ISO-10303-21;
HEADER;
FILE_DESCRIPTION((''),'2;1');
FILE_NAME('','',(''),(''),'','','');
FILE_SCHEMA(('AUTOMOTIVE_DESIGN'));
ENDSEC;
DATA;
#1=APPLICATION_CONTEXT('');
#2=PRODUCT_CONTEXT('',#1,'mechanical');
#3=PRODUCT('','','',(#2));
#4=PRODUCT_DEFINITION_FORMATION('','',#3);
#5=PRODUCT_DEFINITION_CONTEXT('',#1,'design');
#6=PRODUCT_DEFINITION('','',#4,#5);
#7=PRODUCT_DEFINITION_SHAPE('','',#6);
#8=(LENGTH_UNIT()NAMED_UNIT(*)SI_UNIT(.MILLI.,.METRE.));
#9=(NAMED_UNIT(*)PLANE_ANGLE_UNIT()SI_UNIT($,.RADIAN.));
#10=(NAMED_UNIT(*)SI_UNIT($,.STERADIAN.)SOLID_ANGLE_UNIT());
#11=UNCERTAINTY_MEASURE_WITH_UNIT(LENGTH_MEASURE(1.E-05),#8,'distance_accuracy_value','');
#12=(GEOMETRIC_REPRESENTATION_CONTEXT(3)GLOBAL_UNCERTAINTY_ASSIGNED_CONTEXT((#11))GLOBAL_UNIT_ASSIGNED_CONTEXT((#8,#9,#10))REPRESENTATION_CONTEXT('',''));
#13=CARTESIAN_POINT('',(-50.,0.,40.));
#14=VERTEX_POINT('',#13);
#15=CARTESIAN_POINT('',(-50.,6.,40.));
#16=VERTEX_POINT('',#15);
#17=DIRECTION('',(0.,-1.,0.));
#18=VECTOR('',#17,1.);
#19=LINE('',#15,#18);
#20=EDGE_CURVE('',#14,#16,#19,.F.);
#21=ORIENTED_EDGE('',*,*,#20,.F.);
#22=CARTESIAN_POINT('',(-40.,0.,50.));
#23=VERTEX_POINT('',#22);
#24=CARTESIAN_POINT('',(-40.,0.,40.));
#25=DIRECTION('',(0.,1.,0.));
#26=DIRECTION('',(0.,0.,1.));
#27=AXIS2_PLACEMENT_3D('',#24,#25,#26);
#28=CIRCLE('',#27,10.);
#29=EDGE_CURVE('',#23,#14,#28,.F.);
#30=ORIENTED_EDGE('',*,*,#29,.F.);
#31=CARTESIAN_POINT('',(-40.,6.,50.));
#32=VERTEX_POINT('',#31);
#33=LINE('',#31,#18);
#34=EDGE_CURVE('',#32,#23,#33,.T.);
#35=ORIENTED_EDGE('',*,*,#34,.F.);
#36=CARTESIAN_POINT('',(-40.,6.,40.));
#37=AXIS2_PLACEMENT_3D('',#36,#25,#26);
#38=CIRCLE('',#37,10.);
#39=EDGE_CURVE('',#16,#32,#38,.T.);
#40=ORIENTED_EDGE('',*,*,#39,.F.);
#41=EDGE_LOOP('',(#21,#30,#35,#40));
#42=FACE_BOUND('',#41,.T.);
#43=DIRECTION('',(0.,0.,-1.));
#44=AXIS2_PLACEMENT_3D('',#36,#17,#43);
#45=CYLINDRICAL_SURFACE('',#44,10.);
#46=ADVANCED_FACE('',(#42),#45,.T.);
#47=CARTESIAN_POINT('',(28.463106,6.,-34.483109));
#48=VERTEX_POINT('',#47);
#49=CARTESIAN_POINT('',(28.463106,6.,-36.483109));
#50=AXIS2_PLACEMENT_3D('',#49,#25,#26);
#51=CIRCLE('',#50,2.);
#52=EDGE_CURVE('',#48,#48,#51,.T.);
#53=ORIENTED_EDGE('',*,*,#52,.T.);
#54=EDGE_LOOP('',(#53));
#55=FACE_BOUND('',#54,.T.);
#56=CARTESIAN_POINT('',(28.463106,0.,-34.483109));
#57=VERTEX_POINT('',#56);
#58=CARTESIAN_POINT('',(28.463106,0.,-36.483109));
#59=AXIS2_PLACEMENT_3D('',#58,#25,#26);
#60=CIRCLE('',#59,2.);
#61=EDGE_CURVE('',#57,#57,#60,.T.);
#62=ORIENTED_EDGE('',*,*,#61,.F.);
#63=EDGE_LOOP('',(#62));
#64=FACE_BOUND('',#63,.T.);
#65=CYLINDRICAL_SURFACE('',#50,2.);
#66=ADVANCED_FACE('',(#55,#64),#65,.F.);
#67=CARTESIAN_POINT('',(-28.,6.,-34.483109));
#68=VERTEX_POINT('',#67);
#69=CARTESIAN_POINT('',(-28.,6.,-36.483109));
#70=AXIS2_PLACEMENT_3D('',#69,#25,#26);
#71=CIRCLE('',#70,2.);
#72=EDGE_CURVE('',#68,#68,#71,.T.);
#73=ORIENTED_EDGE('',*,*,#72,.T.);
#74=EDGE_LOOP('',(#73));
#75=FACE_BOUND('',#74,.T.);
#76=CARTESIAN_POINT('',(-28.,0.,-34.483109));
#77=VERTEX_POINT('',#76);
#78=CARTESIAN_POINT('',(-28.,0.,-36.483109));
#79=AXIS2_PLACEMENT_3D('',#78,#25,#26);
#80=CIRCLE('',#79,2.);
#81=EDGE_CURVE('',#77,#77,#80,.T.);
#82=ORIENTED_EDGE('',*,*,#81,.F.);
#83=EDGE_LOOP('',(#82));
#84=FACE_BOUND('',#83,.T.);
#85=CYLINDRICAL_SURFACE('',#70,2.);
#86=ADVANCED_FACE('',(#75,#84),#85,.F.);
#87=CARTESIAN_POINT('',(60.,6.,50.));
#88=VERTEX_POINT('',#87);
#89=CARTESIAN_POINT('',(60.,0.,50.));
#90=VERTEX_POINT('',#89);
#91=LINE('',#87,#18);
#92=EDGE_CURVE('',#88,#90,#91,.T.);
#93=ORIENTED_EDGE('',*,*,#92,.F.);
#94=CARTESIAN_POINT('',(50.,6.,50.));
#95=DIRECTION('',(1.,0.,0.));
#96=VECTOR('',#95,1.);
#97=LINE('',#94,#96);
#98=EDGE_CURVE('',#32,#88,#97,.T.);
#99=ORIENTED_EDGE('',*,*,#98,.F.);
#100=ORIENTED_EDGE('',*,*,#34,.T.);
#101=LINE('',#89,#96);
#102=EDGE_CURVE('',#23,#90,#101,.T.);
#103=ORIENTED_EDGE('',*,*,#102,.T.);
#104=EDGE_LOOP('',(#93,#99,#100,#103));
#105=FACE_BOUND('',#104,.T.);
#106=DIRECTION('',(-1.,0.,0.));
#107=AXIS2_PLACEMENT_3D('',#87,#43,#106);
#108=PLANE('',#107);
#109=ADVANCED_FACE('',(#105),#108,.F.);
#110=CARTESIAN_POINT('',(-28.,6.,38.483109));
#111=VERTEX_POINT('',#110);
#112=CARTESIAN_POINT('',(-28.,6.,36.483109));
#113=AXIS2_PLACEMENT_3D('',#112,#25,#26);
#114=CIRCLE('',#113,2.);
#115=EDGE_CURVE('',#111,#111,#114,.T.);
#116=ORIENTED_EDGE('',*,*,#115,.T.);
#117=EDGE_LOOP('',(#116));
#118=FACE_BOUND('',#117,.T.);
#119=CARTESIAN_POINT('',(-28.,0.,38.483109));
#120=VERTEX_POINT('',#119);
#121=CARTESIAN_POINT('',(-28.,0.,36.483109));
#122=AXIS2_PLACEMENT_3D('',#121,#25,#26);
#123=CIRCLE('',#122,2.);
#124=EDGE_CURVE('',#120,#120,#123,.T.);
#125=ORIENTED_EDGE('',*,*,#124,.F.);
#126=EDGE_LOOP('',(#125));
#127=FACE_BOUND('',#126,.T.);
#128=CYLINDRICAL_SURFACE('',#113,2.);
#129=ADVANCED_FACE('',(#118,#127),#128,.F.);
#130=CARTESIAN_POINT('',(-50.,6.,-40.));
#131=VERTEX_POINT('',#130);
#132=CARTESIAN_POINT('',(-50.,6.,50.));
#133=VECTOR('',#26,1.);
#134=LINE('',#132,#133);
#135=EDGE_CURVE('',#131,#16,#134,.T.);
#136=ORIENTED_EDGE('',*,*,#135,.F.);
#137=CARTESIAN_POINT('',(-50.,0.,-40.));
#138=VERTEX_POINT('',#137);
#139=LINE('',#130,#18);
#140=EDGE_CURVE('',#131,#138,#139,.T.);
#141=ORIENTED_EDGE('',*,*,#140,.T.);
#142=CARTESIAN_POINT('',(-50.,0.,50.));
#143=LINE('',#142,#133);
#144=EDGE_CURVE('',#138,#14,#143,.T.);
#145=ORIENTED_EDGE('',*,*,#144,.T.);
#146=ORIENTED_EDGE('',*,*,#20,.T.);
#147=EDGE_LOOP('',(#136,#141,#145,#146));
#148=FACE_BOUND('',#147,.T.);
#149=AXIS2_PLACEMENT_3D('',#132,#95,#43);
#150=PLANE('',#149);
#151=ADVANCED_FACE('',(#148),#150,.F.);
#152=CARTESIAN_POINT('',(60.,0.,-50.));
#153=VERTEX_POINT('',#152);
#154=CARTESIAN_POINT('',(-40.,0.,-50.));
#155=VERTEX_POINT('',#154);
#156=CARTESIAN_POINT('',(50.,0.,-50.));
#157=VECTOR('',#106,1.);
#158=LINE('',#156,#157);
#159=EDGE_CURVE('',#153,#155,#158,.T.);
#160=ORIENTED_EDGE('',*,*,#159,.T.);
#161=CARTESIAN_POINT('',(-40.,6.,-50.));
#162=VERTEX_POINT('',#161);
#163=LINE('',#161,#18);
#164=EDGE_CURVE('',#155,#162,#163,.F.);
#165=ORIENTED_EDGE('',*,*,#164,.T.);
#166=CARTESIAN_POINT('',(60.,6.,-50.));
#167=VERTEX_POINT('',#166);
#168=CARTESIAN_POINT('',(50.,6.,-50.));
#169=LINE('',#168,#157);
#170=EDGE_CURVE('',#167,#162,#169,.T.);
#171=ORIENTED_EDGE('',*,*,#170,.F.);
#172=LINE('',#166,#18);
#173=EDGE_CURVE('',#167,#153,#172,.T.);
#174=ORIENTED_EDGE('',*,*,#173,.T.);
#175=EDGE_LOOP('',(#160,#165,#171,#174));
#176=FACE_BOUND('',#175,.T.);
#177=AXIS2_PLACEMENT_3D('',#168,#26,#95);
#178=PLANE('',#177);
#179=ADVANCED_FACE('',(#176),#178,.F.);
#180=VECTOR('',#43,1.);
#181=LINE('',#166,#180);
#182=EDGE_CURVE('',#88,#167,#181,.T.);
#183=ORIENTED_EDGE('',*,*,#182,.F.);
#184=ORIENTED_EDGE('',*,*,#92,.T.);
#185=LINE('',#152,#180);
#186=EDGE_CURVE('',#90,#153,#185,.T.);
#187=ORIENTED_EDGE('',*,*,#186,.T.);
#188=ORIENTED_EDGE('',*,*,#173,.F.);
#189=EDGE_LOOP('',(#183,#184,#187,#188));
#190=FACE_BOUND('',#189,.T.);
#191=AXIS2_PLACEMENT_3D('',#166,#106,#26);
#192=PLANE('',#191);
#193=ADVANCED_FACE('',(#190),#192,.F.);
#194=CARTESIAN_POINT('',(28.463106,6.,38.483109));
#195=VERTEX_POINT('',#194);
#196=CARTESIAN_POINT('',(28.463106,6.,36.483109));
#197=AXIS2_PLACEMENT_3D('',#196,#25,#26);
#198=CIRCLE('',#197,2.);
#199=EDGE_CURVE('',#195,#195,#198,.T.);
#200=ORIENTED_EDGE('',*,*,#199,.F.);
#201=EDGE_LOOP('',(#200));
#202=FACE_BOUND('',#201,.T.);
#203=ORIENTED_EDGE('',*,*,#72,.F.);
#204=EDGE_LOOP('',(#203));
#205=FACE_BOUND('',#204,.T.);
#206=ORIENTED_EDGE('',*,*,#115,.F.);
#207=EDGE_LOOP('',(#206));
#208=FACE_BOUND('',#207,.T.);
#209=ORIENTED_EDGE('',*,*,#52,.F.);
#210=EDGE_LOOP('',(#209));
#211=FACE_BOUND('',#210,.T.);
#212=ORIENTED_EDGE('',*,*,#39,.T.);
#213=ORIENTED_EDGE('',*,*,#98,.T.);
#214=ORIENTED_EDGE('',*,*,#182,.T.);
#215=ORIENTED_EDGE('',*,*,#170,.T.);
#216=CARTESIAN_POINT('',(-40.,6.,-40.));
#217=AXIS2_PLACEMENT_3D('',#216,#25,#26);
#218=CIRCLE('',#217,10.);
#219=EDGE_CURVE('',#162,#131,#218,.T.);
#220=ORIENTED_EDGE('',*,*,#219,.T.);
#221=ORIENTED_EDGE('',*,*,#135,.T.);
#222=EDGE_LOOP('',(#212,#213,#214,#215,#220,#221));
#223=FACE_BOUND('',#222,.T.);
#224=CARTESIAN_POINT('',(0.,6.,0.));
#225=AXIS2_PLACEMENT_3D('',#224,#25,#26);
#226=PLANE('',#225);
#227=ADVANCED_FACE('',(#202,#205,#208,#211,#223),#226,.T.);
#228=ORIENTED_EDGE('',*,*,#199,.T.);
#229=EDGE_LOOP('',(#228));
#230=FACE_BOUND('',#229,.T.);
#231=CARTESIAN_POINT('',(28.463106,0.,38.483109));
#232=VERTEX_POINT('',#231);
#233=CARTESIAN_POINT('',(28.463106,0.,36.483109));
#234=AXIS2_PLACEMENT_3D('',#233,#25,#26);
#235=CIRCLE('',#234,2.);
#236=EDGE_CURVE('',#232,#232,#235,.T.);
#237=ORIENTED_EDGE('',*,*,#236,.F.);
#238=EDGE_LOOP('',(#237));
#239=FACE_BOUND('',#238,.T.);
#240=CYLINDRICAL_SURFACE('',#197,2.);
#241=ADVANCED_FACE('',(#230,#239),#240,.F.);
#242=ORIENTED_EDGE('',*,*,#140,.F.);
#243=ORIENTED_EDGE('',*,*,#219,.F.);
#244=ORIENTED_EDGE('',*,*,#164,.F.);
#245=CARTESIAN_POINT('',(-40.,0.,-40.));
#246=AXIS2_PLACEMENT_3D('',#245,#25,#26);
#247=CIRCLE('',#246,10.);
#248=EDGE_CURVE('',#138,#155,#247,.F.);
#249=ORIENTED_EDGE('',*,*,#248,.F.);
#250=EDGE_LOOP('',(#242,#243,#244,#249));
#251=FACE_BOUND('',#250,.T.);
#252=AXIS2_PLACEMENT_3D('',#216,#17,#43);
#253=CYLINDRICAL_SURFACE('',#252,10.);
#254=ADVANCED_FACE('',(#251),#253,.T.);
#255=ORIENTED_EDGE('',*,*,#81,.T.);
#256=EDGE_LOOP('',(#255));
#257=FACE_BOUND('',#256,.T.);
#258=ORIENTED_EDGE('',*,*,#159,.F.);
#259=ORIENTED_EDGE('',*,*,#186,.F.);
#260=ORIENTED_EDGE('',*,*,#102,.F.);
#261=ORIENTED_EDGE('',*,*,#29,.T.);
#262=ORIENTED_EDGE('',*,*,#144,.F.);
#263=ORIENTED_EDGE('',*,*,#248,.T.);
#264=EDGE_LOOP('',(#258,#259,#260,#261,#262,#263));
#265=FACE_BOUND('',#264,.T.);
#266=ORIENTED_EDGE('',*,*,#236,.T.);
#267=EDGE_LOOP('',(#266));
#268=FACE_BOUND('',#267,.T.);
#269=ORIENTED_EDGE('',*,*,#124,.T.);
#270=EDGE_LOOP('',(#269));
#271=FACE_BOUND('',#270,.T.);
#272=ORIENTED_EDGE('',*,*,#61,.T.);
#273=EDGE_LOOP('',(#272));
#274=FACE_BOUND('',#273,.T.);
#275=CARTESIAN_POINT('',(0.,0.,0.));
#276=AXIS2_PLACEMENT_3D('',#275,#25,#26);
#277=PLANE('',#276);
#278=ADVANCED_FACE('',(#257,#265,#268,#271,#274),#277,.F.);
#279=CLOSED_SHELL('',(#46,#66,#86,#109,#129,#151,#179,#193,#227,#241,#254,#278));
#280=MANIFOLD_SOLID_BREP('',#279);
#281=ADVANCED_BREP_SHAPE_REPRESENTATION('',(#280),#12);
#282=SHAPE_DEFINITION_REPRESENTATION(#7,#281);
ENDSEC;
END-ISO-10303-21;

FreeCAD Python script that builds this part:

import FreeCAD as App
import Part
import Sketcher

V = App.Vector


def edges_at(feature, points):
    """Names of the edges that pass closest to the given points."""
    edges = feature.Shape.Edges
    near = lambda p: min(range(len(edges)), key=lambda i: edges[i].distToShape(Part.Vertex(*p))[0])
    return sorted({f"Edge{near(p) + 1}" for p in points})

doc = App.newDocument("Part")
body = doc.addObject("PartDesign::Body", "Body")

sketch1 = doc.addObject("Sketcher::SketchObject", "Sketch")
body.addObject(sketch1)
sketch1.AttachmentSupport = (doc.XZ_Plane, [""])
sketch1.MapMode = "FlatFace"
sketch1.addGeometry([
    Part.LineSegment(V(60, -50, 0), V(-50, -50, 0)),
    Part.LineSegment(V(-50, -50, 0), V(-50, 50, 0)),
    Part.LineSegment(V(-50, 50, 0), V(60, 50, 0)),
    Part.LineSegment(V(60, 50, 0), V(60, -50, 0)),
], False)
sketch1.addConstraint([
    Sketcher.Constraint("Coincident", 0, 2, 1, 1),
    Sketcher.Constraint("Coincident", 1, 2, 2, 1),
    Sketcher.Constraint("Coincident", 2, 2, 3, 1),
    Sketcher.Constraint("Coincident", 3, 2, 0, 1),
    Sketcher.Constraint("Horizontal", 0),
    Sketcher.Constraint("Vertical", 1),
    Sketcher.Constraint("Horizontal", 2),
    Sketcher.Constraint("Vertical", 3),
    Sketcher.Constraint("DistanceX", 0, 2, 0, 1, 110.0),
    Sketcher.Constraint("DistanceY", 1, 1, 1, 2, 100.0),
    Sketcher.Constraint("DistanceX", 0, 2, -1, 1, 50.0),
    Sketcher.Constraint("DistanceY", 0, 2, -1, 1, 50.0),
])
pad1 = doc.addObject("PartDesign::Pad", "Pad")
body.addObject(pad1)
pad1.Profile = sketch1
pad1.Length = 6
pad1.Reversed = True
doc.recompute()

fillet = doc.addObject("PartDesign::Fillet", "Fillet")
body.addObject(fillet)
fillet.Base = (pad1, edges_at(pad1, [(-50, 3, -50), (-50, 3, 50)]))
fillet.Radius = 10

sketch2 = doc.addObject("Sketcher::SketchObject", "Sketch001")
body.addObject(sketch2)
sketch2.AttachmentSupport = (doc.XZ_Plane, [""])
sketch2.MapMode = "FlatFace"
sketch2.AttachmentOffset = App.Placement(V(0, 0, -6), App.Rotation())
sketch2.addGeometry([
    Part.Circle(V(-28, -36.483109, 0), V(0, 0, 1), 2),
    Part.Circle(V(28.463106, -36.483109, 0), V(0, 0, 1), 2),
    Part.Circle(V(-28, 36.483109, 0), V(0, 0, 1), 2),
    Part.Circle(V(28.463106, 36.483109, 0), V(0, 0, 1), 2),
], False)
sketch2.addConstraint([
    Sketcher.Constraint("Equal", 0, 1),
    Sketcher.Constraint("Equal", 1, 2),
    Sketcher.Constraint("Equal", 2, 3),
    Sketcher.Constraint("Symmetric", 0, 3, 2, 3, -1),
    Sketcher.Constraint("Symmetric", 1, 3, 3, 3, -1),
    Sketcher.Constraint("Horizontal", 0, 3, 1, 3),
    Sketcher.Constraint("Diameter", 0, 4.0),
    Sketcher.Constraint("DistanceX", 0, 3, -1, 1, 28.0),
    Sketcher.Constraint("DistanceY", 0, 3, -1, 1, 36.483109),
    Sketcher.Constraint("DistanceX", -1, 1, 1, 3, 28.463106),
])
doc.recompute()
hole = doc.addObject("PartDesign::Hole", "Hole")
body.addObject(hole)
hole.Profile = sketch2
hole.ThreadType = "None"
hole.Diameter = 4
hole.DepthType = "Dimension"
hole.Depth = 98.31
hole.DrillPoint = "Angled"
hole.DrillPointAngle = 118
hole.Reversed = True

doc.recompute()
